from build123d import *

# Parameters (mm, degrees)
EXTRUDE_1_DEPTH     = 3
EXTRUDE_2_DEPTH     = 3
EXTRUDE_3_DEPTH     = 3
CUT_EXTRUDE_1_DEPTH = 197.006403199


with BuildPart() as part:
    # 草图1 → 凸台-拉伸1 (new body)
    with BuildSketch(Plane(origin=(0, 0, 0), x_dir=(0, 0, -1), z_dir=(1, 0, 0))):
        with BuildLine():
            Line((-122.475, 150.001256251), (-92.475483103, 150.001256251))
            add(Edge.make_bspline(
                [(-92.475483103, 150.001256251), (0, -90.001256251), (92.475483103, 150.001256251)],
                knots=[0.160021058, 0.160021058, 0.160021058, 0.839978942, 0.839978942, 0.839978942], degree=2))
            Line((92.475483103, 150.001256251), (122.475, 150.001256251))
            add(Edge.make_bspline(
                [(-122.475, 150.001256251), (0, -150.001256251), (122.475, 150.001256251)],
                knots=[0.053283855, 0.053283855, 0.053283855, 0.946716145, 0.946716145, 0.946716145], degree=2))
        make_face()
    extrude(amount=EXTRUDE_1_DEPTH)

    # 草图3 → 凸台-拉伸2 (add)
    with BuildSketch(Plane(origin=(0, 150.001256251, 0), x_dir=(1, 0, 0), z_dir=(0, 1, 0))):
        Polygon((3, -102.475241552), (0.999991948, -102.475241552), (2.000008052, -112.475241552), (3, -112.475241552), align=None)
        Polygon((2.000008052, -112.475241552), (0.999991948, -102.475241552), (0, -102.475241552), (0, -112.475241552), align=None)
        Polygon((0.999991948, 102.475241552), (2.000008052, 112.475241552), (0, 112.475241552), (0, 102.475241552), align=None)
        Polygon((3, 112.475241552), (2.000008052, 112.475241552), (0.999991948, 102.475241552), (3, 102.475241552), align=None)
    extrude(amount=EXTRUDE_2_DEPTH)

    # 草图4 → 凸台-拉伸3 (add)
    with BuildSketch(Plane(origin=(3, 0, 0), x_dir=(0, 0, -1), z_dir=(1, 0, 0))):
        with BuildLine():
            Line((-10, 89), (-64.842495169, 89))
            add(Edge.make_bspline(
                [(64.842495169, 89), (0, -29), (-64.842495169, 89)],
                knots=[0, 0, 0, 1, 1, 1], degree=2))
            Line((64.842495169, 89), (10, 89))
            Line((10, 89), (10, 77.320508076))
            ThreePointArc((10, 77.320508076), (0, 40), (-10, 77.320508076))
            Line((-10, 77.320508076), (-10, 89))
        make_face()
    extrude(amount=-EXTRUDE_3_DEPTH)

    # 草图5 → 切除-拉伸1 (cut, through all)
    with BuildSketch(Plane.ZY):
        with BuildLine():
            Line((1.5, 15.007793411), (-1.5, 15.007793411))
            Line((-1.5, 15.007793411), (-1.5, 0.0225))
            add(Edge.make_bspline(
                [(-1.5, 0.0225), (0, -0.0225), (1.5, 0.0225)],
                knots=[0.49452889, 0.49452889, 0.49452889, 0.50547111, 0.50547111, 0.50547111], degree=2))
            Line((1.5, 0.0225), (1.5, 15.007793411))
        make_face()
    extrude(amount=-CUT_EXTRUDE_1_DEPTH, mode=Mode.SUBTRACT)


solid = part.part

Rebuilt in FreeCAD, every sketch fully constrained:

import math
import FreeCAD as App
import Part
import Sketcher
from FreeCAD import Vector


def add_polygon(sketch, points):
    """Adds a closed chain of lines whose ends are joined by coincident constraints."""
    first, n = sketch.GeometryCount, len(points)
    for a, b in zip(points, points[1:] + points[:1]):
        sketch.addGeometry(Part.LineSegment(App.Vector(*a, 0), App.Vector(*b, 0)), False)
    for i in range(n):
        sketch.addConstraint(Sketcher.Constraint("Coincident", first + i, 2, first + (i + 1) % n, 1))

doc = App.newDocument("Part")
body = doc.addObject("PartDesign::Body", "Body")

sketch1 = body.newObject("Sketcher::SketchObject", "Sketch")
sketch1.AttachmentSupport = (doc.getObject("YZ_Plane"), [""])
sketch1.MapMode = "FlatFace"
sketch1.addGeometry([
    Part.LineSegment(Vector(150.001256, 92.475483, 0), Vector(150.001256, 122.475, 0)),
    Part.BSplineCurve([Vector(150.001256, 122.475, 0), Vector(-150.001256, 0, 0), Vector(150.001256, -122.475, 0)], [3, 3], [0.053283855, 0.946716145], False, 2, [1, 1, 1], False),
    Part.LineSegment(Vector(150.001256, -122.475, 0), Vector(150.001256, -92.475483, 0)),
    Part.BSplineCurve([Vector(150.001256, 92.475483, 0), Vector(-90.001256, 0, 0), Vector(150.001256, -92.475483, 0)], [3, 3], [0.160021058, 0.839978942], False, 2, [1, 1, 1], False),
], False)
sketch1.addConstraint([
    Sketcher.Constraint("Block", 1),
    Sketcher.Constraint("Block", 3),
    Sketcher.Constraint("Coincident", 0, 2, 1, 1),
    Sketcher.Constraint("Coincident", 1, 2, 2, 1),
    Sketcher.Constraint("Coincident", 2, 2, 3, 2),
    Sketcher.Constraint("Coincident", 3, 1, 0, 1),
])
pad1 = body.newObject("PartDesign::Pad", "Pad")
pad1.Profile = sketch1
pad1.Length = 3

sketch2 = body.newObject("Sketcher::SketchObject", "Sketch001")
sketch2.AttachmentSupport = (doc.getObject("XZ_Plane"), [""])
sketch2.MapMode = "FlatFace"
sketch2.AttachmentOffset = App.Placement(Vector(0, 0, -150.001256), App.Rotation())
add_polygon(sketch2, [(3, 102.5), (0, 102.5), (0, 112.5), (3, 112.5)])
add_polygon(sketch2, [(0, -112.5), (0, -102.5), (3, -102.5), (3, -112.5)])
sketch2.addConstraint([
    Sketcher.Constraint("Horizontal", 0),
    Sketcher.Constraint("Vertical", 1),
    Sketcher.Constraint("Horizontal", 2),
    Sketcher.Constraint("Vertical", 3),
    Sketcher.Constraint("Vertical", 4),
    Sketcher.Constraint("Horizontal", 5),
    Sketcher.Constraint("Vertical", 6),
    Sketcher.Constraint("Horizontal", 7),
    Sketcher.Constraint("Symmetric", 0, 2, 4, 2, -1, 1),
    Sketcher.Constraint("Symmetric", 2, 2, 6, 2, -1),
    Sketcher.Constraint("PointOnObject", 0, 2, -2),
    Sketcher.Constraint("DistanceX", 0, 2, 0, 1, 3.0),
    Sketcher.Constraint("DistanceY", 1, 1, 1, 2, 10.0),
    Sketcher.Constraint("DistanceY", -1, 1, 0, 2, 102.475242),
])
pad2 = body.newObject("PartDesign::Pad", "Pad001")
pad2.Profile = sketch2
pad2.Length = 3
pad2.Reversed = True

sketch3 = body.newObject("Sketcher::SketchObject", "Sketch002")
sketch3.AttachmentSupport = (doc.getObject("YZ_Plane"), [""])
sketch3.MapMode = "FlatFace"
sketch3.AttachmentOffset = App.Placement(Vector(0, 0, 3), App.Rotation())
sketch3.addGeometry([
    Part.LineSegment(Vector(89, 10, 0), Vector(89, 64.842495, 0)),
    Part.BSplineCurve([Vector(89, -64.842495, 0), Vector(-29, 0, 0), Vector(89, 64.842495, 0)], [3, 3], [0, 1], False, 2, [1, 1, 1], False),
    Part.LineSegment(Vector(89, -64.842495, 0), Vector(89, -10, 0)),
    Part.LineSegment(Vector(89, -10, 0), Vector(77.320508, -10, 0)),
    Part.ArcOfCircle(Part.Circle(Vector(60, 0, 0), Vector(0, 0, 1), 20), math.radians(30), math.radians(330)),
    Part.LineSegment(Vector(77.320508, 10, 0), Vector(89, 10, 0)),
], False)
sketch3.addConstraint([
    Sketcher.Constraint("Block", 1),
    Sketcher.Constraint("Coincident", 0, 2, 1, 2),
    Sketcher.Constraint("Coincident", 1, 1, 2, 1),
    Sketcher.Constraint("Coincident", 2, 2, 3, 1),
    Sketcher.Constraint("Coincident", 3, 2, 4, 2),
    Sketcher.Constraint("Coincident", 4, 1, 5, 1),
    Sketcher.Constraint("Coincident", 5, 2, 0, 1),
    Sketcher.Constraint("Vertical", 0),
    Sketcher.Constraint("Vertical", 2),
    Sketcher.Constraint("Horizontal", 3),
    Sketcher.Constraint("Horizontal", 5),
    Sketcher.Constraint("Symmetric", 3, 2, 4, 1, -1),
    Sketcher.Constraint("Radius", 4, 20.0),
    Sketcher.Constraint("DistanceX", -1, 1, 4, 3, 60.0),
    Sketcher.Constraint("DistanceY", 2, 2, -1, 1, 10.0),
])
pad3 = body.newObject("PartDesign::Pad", "Pad002")
pad3.Profile = sketch3
pad3.Length = 3
pad3.Reversed = True

sketch4 = body.newObject("Sketcher::SketchObject", "Sketch003")
sketch4.AttachmentSupport = (doc.getObject("YZ_Plane"), [""])
sketch4.MapMode = "FlatFace"
sketch4.addGeometry([
    Part.LineSegment(Vector(15.007793, 1.5, 0), Vector(15.007793, -1.5, 0)),
    Part.LineSegment(Vector(15.007793, -1.5, 0), Vector(0.0225, -1.5, 0)),
    Part.BSplineCurve([Vector(0.0225, -1.5, 0), Vector(-0.0225, 0, 0), Vector(0.0225, 1.5, 0)], [3, 3], [0.49452889, 0.50547111], False, 2, [1, 1, 1], False),
    Part.LineSegment(Vector(0.0225, 1.5, 0), Vector(15.007793, 1.5, 0)),
], False)
sketch4.addConstraint([
    Sketcher.Constraint("Block", 2),
    Sketcher.Constraint("Coincident", 0, 2, 1, 1),
    Sketcher.Constraint("Coincident", 1, 2, 2, 1),
    Sketcher.Constraint("Coincident", 2, 2, 3, 1),
    Sketcher.Constraint("Coincident", 3, 2, 0, 1),
    Sketcher.Constraint("Vertical", 0),
    Sketcher.Constraint("Horizontal", 1),
    Sketcher.Constraint("Horizontal", 3),
    Sketcher.Constraint("DistanceX", 1, 2, 1, 1, 14.985293),
])
pocket1 = body.newObject("PartDesign::Pocket", "Pocket")
pocket1.Profile = sketch4
pocket1.Type = "ThroughAll"
pocket1.Reversed = True

doc.recompute()
